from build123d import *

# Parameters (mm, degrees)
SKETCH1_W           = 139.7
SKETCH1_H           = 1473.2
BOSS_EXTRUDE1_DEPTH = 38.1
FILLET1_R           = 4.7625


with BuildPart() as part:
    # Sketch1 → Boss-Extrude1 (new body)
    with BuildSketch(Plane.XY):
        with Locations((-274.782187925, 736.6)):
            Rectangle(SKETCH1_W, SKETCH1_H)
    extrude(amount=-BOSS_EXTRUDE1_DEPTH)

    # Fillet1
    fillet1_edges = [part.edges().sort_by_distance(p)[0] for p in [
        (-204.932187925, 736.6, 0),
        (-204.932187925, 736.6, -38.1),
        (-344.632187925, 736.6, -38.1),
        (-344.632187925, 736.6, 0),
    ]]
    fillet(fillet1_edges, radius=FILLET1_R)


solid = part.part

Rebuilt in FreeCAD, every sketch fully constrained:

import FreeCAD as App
import Part
import Sketcher
Q = App.Units.Quantity


def edges_at(feature, points):
    """Names of the edges that pass closest to the given points."""
    edges = feature.Shape.Edges
    near = lambda p: min(range(len(edges)), key=lambda i: edges[i].distToShape(Part.Vertex(*p))[0])
    return sorted({f"Edge{near(p) + 1}" for p in points})


def add_polygon(sketch, points):
    """Adds a closed chain of lines whose ends are joined by coincident constraints."""
    first, n = sketch.GeometryCount, len(points)
    for a, b in zip(points, points[1:] + points[:1]):
        sketch.addGeometry(Part.LineSegment(App.Vector(*a, 0), App.Vector(*b, 0)), False)
    for i in range(n):
        sketch.addConstraint(Sketcher.Constraint("Coincident", first + i, 2, first + (i + 1) % n, 1))

doc = App.newDocument("Part")
body = doc.addObject("PartDesign::Body", "Body")

# Sketch on XY plane
sketch1 = doc.addObject("Sketcher::SketchObject", "Sketch")
body.addObject(sketch1)
sketch1.AttachmentSupport = (doc.XY_Plane, [""])
sketch1.MapMode = "FlatFace"
add_polygon(sketch1, [(-344.632188, 1473.2), (-344.632188, 0), (-204.932188, 0), (-204.932188, 1473.2)])  # lines 0-3
sketch1.addConstraint([
    Sketcher.Constraint("Vertical", 0),
    Sketcher.Constraint("Horizontal", 1),
    Sketcher.Constraint("Vertical", 2),
    Sketcher.Constraint("Horizontal", 3),
    Sketcher.Constraint("PointOnObject", 0, 2, -1),
    Sketcher.Constraint("DistanceY", 0, 2, 0, 1, Q("58 in")),
    Sketcher.Constraint("DistanceX", 1, 1, 1, 2, Q("5.5 in")),
    Sketcher.Constraint("DistanceX", 0, 2, -1, 1, Q("344.632188 mm")),
])
pad1 = doc.addObject("PartDesign::Pad", "Pad")
body.addObject(pad1)
pad1.Profile = sketch1
pad1.Length = Q("1.5 in")
pad1.Reversed = True
doc.recompute()

fillet = doc.addObject("PartDesign::Fillet", "Fillet")
body.addObject(fillet)
fillet.Base = (pad1, edges_at(pad1, [
    (-204.932, 736.6, 0),
    (-204.932, 736.6, -38.1),
    (-344.632, 736.6, -38.1),
    (-344.632, 736.6, 0),
]))
fillet.Radius = Q("0.1875 in")

doc.recompute()
